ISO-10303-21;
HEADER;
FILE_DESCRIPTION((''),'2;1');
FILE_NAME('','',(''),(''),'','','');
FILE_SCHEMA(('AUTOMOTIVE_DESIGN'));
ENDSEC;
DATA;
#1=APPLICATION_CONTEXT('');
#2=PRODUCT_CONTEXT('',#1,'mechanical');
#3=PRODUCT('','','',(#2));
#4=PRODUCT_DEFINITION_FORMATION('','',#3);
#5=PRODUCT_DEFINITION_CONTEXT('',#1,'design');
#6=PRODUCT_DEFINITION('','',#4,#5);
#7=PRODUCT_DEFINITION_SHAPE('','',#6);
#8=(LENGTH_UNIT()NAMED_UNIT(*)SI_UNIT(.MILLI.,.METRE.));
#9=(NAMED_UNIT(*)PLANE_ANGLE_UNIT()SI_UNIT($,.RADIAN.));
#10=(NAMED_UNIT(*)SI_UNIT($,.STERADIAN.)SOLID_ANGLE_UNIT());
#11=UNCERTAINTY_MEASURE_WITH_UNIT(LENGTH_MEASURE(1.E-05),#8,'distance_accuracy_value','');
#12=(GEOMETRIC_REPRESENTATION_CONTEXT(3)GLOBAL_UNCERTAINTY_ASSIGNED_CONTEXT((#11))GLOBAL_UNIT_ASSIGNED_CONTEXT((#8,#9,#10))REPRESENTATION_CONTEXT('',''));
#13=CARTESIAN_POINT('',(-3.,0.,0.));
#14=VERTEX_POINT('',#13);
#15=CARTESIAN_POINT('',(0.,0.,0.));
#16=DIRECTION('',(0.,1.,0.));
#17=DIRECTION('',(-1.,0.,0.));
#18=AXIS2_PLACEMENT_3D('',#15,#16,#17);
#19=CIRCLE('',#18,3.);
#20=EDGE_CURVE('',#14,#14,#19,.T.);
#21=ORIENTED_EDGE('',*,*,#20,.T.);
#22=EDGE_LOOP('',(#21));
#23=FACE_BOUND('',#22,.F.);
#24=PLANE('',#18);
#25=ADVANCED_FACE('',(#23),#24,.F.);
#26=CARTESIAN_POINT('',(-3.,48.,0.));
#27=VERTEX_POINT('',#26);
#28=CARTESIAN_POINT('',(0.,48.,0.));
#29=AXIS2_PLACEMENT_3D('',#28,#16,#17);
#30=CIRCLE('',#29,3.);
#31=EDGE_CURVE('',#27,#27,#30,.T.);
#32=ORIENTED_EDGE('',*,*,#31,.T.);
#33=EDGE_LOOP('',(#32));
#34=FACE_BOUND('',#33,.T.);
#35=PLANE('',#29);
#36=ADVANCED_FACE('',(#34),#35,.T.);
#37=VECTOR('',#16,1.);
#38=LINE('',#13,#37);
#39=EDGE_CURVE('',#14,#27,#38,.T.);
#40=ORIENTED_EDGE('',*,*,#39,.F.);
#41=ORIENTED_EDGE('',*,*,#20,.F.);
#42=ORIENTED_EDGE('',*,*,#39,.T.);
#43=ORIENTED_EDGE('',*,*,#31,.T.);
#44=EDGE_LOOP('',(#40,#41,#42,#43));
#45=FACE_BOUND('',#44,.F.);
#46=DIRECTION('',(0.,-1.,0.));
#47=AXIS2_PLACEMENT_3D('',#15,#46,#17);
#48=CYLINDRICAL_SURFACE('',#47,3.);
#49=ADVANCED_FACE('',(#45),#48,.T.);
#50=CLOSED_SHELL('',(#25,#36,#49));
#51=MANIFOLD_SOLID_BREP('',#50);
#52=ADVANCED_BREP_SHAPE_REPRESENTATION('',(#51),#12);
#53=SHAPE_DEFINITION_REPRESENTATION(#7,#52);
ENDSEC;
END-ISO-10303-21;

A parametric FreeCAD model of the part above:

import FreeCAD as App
import Part
import Sketcher
from FreeCAD import Vector
Q = App.Units.Quantity

doc = App.newDocument("Part")
body = doc.addObject("PartDesign::Body", "Body")

# Sketch on XZ plane
sketch1 = body.newObject("Sketcher::SketchObject", "Sketch")
sketch1.AttachmentSupport = (doc.getObject("XZ_Plane"), [""])
sketch1.MapMode = "FlatFace"
sketch1.addGeometry(Part.Circle(Vector(0, 0, 0), Vector(0, 0, 1), 3), False)
sketch1.addConstraint([
    Sketcher.Constraint("Coincident", 0, 3, -1, 1),
    Sketcher.Constraint("Diameter", 0, Q("6 mm")),
])
pad1 = body.newObject("PartDesign::Pad", "Pad")
pad1.Profile = sketch1
pad1.Length = 48
pad1.Reversed = True

doc.recompute()
